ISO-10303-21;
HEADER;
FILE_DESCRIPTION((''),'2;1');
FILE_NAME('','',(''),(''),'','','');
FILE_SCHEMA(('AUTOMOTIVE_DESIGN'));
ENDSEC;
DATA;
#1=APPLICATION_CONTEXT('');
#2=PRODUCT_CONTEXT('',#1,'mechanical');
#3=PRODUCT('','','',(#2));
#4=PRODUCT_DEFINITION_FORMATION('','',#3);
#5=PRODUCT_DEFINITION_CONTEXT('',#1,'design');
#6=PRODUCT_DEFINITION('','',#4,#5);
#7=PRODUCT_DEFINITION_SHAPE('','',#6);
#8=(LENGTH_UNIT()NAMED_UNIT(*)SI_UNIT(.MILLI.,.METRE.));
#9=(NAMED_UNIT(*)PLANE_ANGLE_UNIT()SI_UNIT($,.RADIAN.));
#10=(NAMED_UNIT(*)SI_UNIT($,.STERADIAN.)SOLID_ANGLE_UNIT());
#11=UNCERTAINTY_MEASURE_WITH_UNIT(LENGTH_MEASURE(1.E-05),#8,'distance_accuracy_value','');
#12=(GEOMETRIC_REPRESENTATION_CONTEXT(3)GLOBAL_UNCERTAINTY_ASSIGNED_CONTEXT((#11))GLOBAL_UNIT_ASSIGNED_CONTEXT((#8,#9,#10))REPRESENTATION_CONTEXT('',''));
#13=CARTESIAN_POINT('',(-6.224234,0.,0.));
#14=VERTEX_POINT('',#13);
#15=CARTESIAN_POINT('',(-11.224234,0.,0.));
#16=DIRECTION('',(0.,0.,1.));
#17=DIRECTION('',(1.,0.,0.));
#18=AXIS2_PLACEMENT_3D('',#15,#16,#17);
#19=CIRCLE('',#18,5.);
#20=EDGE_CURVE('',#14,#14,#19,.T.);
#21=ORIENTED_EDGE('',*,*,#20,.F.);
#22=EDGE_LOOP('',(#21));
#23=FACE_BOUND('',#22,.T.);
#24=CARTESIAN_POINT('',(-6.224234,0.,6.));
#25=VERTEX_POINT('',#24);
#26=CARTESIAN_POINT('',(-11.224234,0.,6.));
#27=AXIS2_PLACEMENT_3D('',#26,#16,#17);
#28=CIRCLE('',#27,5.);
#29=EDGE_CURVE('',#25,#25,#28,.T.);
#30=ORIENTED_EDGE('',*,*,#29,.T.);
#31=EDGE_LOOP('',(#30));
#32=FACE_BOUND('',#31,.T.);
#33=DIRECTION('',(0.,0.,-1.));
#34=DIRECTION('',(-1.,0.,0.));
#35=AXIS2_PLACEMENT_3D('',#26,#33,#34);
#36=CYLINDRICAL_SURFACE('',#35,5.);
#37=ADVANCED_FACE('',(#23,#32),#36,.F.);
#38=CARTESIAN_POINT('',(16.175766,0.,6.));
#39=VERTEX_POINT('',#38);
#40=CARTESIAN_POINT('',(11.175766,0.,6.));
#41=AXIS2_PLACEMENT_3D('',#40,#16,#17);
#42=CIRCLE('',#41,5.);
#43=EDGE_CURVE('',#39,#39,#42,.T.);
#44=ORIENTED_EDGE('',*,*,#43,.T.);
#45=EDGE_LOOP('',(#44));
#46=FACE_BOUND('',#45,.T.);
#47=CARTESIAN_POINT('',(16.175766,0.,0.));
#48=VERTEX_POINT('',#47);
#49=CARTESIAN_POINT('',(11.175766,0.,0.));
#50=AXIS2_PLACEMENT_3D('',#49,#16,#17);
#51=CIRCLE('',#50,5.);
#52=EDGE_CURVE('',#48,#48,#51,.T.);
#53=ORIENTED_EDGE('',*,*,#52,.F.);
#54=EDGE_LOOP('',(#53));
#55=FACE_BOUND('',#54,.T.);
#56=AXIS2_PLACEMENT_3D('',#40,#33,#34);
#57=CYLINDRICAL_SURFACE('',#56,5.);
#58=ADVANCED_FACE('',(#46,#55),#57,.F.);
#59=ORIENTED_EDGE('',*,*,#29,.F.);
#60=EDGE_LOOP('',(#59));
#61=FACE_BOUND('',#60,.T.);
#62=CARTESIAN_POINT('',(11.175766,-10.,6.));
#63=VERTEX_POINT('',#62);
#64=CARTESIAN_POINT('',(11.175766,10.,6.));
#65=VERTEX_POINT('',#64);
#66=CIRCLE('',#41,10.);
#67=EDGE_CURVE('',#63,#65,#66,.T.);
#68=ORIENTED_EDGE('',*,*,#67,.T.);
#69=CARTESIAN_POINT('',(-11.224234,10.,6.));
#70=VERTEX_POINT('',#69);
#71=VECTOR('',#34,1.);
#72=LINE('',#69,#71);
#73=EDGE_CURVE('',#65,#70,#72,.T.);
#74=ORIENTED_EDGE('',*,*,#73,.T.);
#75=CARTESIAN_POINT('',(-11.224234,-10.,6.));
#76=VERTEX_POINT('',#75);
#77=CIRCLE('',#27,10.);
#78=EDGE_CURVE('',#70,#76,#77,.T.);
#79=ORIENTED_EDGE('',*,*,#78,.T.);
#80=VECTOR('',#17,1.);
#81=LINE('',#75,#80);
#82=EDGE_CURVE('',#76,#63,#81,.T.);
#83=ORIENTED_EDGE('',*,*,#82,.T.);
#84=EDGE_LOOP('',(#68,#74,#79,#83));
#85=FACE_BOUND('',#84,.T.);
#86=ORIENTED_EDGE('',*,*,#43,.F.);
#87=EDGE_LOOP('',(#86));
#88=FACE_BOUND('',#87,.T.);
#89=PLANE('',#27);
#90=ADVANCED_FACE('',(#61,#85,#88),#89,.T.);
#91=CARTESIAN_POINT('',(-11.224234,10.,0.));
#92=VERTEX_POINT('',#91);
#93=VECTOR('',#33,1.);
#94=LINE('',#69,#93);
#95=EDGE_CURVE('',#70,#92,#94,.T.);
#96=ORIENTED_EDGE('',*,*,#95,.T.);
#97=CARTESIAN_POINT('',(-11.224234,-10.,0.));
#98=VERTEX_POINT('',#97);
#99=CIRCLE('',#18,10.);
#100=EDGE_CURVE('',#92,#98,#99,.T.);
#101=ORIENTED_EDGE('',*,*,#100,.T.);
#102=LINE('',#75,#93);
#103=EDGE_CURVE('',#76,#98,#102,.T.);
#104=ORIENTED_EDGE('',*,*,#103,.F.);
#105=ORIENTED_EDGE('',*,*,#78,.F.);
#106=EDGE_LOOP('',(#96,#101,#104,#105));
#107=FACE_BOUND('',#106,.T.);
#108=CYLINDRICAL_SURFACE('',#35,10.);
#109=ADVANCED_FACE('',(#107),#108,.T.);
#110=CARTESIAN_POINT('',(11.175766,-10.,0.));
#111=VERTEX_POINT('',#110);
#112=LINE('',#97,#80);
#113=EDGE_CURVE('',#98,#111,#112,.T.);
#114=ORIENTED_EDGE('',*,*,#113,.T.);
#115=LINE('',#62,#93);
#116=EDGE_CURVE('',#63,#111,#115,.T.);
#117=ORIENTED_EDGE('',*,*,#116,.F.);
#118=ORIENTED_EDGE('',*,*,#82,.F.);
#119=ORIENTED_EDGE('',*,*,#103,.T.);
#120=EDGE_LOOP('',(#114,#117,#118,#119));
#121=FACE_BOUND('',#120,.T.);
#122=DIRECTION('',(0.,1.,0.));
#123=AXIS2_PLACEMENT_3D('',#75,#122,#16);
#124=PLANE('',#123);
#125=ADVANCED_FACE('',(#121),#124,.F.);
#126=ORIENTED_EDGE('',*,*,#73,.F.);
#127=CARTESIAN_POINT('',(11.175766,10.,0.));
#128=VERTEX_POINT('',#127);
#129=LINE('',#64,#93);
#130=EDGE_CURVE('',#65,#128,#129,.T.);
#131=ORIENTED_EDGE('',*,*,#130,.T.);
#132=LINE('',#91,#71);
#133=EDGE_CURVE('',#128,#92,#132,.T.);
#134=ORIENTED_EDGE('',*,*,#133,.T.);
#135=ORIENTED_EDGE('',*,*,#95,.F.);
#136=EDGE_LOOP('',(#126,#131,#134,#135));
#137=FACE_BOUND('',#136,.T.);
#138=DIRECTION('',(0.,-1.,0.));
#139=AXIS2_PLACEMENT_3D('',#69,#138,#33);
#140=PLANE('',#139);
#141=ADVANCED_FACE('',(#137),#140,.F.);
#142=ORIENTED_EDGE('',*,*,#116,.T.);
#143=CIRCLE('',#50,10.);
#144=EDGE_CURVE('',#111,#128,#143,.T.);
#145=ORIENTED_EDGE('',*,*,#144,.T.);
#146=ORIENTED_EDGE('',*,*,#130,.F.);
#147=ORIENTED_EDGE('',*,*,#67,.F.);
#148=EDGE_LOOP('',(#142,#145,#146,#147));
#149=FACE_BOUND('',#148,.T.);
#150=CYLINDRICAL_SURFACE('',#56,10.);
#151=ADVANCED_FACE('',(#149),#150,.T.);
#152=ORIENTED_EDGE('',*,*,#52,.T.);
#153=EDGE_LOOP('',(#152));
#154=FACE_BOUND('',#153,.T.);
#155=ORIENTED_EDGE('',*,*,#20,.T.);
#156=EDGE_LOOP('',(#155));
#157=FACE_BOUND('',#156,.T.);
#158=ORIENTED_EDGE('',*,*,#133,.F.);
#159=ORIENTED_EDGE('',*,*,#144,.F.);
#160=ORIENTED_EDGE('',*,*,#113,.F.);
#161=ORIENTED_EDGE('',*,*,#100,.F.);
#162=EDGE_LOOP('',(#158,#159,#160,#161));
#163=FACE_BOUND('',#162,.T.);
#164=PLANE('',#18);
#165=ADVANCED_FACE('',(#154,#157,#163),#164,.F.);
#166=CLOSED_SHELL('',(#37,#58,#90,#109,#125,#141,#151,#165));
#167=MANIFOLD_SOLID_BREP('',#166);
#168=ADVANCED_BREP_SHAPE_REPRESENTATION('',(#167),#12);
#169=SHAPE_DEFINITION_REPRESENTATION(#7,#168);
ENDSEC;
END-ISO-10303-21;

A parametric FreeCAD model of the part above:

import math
import FreeCAD as App
import Part
import Sketcher

doc = App.newDocument("Part")
params = doc.addObject("Spreadsheet::Sheet", "Params")
for row, (alias, value) in enumerate([
    ("sketch1_diameter", "10 mm"),
    ("sketch1_radius", "10 mm"),
    ("sketch1_width", "22.4 mm"),
    ("pad1_length", "6 mm"),
], start=1):
    params.set(f"A{row}", alias)
    params.set(f"B{row}", "=" + value)
    params.setAlias(f"B{row}", alias)

body = doc.addObject("PartDesign::Body", "Body")

# Sketch on XY plane
sketch1 = doc.addObject("Sketcher::SketchObject", "Sketch")
body.addObject(sketch1)
sketch1.AttachmentSupport = (doc.XY_Plane, [""])
sketch1.MapMode = "FlatFace"
sketch1.addGeometry([
    Part.LineSegment(App.Vector(11, 10, 0), App.Vector(-11, 10, 0)),  # 0
    Part.ArcOfCircle(Part.Circle(App.Vector(-11, 0, 0), App.Vector(0, 0, 1), 10), math.radians(90), math.radians(270)),  # 1
    Part.LineSegment(App.Vector(-11, -10, 0), App.Vector(11, -10, 0)),  # 2
    Part.ArcOfCircle(Part.Circle(App.Vector(11, 0, 0), App.Vector(0, 0, 1), 10), math.radians(-90), math.radians(90)),  # 3
    Part.Circle(App.Vector(11, 0, 0), App.Vector(0, 0, 1), 5),  # 4
    Part.Circle(App.Vector(-11, 0, 0), App.Vector(0, 0, 1), 5),  # 5
], False)
sketch1.addConstraint([
    Sketcher.Constraint("Tangent", 0, 2, 1, 1),
    Sketcher.Constraint("Tangent", 1, 2, 2, 1),
    Sketcher.Constraint("Tangent", 2, 2, 3, 1),
    Sketcher.Constraint("Tangent", 3, 2, 0, 1),
    Sketcher.Constraint("Horizontal", 0),
    Sketcher.Constraint("Horizontal", 2),
    Sketcher.Constraint("Coincident", 4, 3, 3, 3),
    Sketcher.Constraint("Coincident", 5, 3, 1, 3),
    Sketcher.Constraint("Equal", 4, 5),
    Sketcher.Constraint("PointOnObject", 1, 3, -1),
    Sketcher.Constraint("Diameter", 4, 10.0),
    Sketcher.Constraint("Radius", 1, 10.0),
    Sketcher.Constraint("DistanceX", 0, 2, 0, 1, 22.4),
    Sketcher.Constraint("DistanceX", 1, 3, -1, 1, 11.224234),
])
sketch1.setExpression("Constraints[10]", "Params.sketch1_diameter")
sketch1.setExpression("Constraints[11]", "Params.sketch1_radius")
sketch1.setExpression("Constraints[12]", "Params.sketch1_width")
pad1 = doc.addObject("PartDesign::Pad", "Pad")
body.addObject(pad1)
pad1.Profile = sketch1
pad1.setExpression("Length", "Params.pad1_length")

doc.recompute()
